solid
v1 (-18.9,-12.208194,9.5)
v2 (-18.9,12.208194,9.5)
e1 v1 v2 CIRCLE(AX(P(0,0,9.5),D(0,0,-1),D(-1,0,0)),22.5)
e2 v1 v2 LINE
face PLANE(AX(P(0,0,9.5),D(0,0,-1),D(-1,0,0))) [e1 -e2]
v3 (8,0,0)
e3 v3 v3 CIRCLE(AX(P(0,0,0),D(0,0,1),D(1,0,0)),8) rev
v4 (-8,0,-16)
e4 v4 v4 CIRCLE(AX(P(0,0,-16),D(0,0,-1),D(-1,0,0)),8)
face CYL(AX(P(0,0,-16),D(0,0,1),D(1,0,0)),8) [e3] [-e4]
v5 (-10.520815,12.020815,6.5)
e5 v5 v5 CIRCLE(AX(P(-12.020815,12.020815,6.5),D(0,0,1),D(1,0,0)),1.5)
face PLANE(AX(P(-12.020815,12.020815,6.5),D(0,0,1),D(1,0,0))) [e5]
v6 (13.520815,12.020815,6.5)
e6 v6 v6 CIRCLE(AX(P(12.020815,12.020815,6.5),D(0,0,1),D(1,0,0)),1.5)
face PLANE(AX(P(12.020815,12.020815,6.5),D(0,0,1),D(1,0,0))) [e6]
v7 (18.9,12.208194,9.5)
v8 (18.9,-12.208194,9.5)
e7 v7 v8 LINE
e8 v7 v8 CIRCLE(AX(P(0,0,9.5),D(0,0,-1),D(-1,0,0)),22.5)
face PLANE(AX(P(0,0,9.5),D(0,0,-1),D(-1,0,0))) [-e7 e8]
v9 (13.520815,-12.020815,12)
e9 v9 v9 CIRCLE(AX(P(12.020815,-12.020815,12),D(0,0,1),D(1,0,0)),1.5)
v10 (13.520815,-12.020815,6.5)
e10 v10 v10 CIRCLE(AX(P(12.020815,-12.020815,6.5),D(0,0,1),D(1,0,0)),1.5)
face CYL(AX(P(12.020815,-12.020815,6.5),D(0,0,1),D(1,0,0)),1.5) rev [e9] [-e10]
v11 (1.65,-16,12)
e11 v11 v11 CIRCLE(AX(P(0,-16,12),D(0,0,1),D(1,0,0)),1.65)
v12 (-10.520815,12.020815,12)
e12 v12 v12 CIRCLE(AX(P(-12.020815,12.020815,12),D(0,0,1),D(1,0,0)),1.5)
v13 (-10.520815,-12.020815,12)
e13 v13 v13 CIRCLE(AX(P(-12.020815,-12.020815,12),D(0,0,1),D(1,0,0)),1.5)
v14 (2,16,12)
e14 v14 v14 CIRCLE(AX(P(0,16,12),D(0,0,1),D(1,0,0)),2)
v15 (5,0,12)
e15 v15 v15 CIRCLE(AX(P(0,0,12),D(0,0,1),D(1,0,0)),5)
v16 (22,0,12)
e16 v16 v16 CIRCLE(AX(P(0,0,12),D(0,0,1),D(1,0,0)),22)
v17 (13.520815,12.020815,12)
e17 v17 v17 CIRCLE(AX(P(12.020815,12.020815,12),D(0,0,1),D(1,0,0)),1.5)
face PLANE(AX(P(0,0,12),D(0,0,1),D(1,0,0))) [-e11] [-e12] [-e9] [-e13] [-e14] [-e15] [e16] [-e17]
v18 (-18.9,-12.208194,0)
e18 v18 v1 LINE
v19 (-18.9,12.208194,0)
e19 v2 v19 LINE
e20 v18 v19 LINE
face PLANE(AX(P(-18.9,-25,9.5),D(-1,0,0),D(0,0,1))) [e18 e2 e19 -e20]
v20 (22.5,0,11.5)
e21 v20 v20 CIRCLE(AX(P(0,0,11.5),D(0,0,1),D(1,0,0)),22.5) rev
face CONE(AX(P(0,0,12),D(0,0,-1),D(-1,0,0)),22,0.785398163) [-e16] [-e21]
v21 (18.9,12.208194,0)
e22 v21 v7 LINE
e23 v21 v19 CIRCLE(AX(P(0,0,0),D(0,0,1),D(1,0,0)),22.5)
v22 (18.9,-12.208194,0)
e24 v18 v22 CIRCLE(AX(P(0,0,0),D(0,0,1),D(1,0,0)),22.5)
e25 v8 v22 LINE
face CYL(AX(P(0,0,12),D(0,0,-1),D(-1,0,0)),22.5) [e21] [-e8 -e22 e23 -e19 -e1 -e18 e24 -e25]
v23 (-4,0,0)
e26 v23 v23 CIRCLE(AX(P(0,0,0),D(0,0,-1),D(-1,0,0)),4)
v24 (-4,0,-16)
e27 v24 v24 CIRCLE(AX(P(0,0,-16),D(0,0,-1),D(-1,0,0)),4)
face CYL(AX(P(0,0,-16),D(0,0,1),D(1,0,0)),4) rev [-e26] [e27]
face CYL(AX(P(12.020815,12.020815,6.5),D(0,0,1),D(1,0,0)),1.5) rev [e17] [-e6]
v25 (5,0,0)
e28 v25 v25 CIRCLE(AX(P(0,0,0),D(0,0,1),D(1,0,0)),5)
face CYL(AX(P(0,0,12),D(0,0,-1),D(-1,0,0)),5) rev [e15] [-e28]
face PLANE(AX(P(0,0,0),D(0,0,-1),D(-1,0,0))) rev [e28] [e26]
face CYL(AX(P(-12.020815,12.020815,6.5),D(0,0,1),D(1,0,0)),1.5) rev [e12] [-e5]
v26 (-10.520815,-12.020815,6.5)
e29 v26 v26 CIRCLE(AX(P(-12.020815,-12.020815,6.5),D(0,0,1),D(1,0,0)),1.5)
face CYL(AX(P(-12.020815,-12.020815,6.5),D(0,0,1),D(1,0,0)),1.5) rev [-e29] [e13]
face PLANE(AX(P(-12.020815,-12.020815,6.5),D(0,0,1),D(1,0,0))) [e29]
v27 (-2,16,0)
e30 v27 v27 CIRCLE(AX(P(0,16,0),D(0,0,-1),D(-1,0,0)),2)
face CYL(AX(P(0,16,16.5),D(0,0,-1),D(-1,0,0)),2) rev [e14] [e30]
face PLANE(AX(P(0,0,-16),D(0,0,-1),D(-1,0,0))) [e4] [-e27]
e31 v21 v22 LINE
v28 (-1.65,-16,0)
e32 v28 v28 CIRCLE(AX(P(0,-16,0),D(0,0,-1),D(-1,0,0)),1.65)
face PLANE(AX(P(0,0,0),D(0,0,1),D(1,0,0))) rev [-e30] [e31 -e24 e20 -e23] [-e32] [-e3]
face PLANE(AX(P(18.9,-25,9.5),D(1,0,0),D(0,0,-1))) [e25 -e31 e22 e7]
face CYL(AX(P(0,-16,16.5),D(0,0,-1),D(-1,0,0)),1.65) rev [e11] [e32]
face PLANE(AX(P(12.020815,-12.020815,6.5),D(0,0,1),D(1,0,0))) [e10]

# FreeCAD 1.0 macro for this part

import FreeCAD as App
import Part
import Sketcher


def edges_at(feature, points):
    """Names of the edges that pass closest to the given points."""
    edges = feature.Shape.Edges
    near = lambda p: min(range(len(edges)), key=lambda i: edges[i].distToShape(Part.Vertex(*p))[0])
    return sorted({f"Edge{near(p) + 1}" for p in points})


def add_polygon(sketch, points):
    """Adds a closed chain of lines whose ends are joined by coincident constraints."""
    first, n = sketch.GeometryCount, len(points)
    for a, b in zip(points, points[1:] + points[:1]):
        sketch.addGeometry(Part.LineSegment(App.Vector(*a, 0), App.Vector(*b, 0)), False)
    for i in range(n):
        sketch.addConstraint(Sketcher.Constraint("Coincident", first + i, 2, first + (i + 1) % n, 1))

doc = App.newDocument("Part")
body = doc.addObject("PartDesign::Body", "Body")

sketch1 = body.newObject("Sketcher::SketchObject", "Sketch")
sketch1.AttachmentSupport = (doc.getObject("XY_Plane"), [""])
sketch1.MapMode = "FlatFace"
sketch1.addGeometry(Part.Circle(App.Vector(0, 0, 0), App.Vector(0, 0, 1), 22), False)
sketch1.addGeometry(Part.Circle(App.Vector(0, 0, 0), App.Vector(0, 0, 1), 5), False)
sketch1.addConstraint(Sketcher.Constraint("Coincident", 0, 3, -1, 1))
sketch1.addConstraint(Sketcher.Constraint("Coincident", 1, 3, -1, 1))
sketch1.addConstraint(Sketcher.Constraint("Diameter", 0, 45.0))
sketch1.addConstraint(Sketcher.Constraint("Diameter", 1, 10.0))
pad1 = body.newObject("PartDesign::Pad", "Pad")
pad1.Profile = sketch1
pad1.Length = 12

sketch2 = body.newObject("Sketcher::SketchObject", "Sketch001")
sketch2.AttachmentSupport = (doc.getObject("XY_Plane"), [""])
sketch2.MapMode = "FlatFace"
sketch2.AttachmentOffset = App.Placement(App.Vector(0, 0, 12), App.Rotation())
sketch2.addGeometry(Part.Circle(App.Vector(12, 12, 0), App.Vector(0, 0, 1), 1.5), False)
sketch2.addGeometry(Part.Circle(App.Vector(12, -12, 0), App.Vector(0, 0, 1), 1.5), False)
sketch2.addGeometry(Part.Circle(App.Vector(-12, -12, 0), App.Vector(0, 0, 1), 1.5), False)
sketch2.addGeometry(Part.Circle(App.Vector(-12, 12, 0), App.Vector(0, 0, 1), 1.5), False)
sketch2.addConstraint(Sketcher.Constraint("Equal", 0, 1))
sketch2.addConstraint(Sketcher.Constraint("Equal", 1, 2))
sketch2.addConstraint(Sketcher.Constraint("Equal", 2, 3))
sketch2.addConstraint(Sketcher.Constraint("Symmetric", 0, 3, 2, 3, -1, 1))
sketch2.addConstraint(Sketcher.Constraint("Symmetric", 1, 3, 3, 3, -1, 1))
sketch2.addConstraint(Sketcher.Constraint("Symmetric", 1, 3, 2, 3, -2))
sketch2.addConstraint(Sketcher.Constraint("Diameter", 0, 3.0))
sketch2.addConstraint(Sketcher.Constraint("DistanceY", 1, 3, 0, 3, 24.041631))
sketch2.addConstraint(Sketcher.Constraint("DistanceX", 2, 3, 1, 3, 24.041631))
pocket1 = body.newObject("PartDesign::Pocket", "Pocket")
pocket1.Profile = sketch2
pocket1.Length = 5.5
doc.recompute()

chamfer = body.newObject("PartDesign::Chamfer", "Chamfer")
chamfer.Base = (pocket1, edges_at(pocket1, [(-22.5, 0, 12)]))
chamfer.Size = 0.5

sketch3 = body.newObject("Sketcher::SketchObject", "Sketch002")
sketch3.AttachmentSupport = (doc.getObject("XY_Plane"), [""])
sketch3.MapMode = "FlatFace"
add_polygon(sketch3, [(30, 30), (30, -30), (-30, -30), (-30, 30)])
add_polygon(sketch3, [(-19, -25), (19, -25), (19, 25), (-19, 25)])
sketch3.addConstraint(Sketcher.Constraint("Vertical", 0))
sketch3.addConstraint(Sketcher.Constraint("Horizontal", 1))
sketch3.addConstraint(Sketcher.Constraint("Vertical", 2))
sketch3.addConstraint(Sketcher.Constraint("Horizontal", 3))
sketch3.addConstraint(Sketcher.Constraint("Horizontal", 4))
sketch3.addConstraint(Sketcher.Constraint("Vertical", 5))
sketch3.addConstraint(Sketcher.Constraint("Horizontal", 6))
sketch3.addConstraint(Sketcher.Constraint("Vertical", 7))
sketch3.addConstraint(Sketcher.Constraint("Symmetric", 0, 2, 2, 2, -1, 1))
sketch3.addConstraint(Sketcher.Constraint("Symmetric", 4, 2, 6, 2, -1, 1))
sketch3.addConstraint(Sketcher.Constraint("Equal", 3, 0))
sketch3.addConstraint(Sketcher.Constraint("DistanceY", 5, 1, 5, 2, 50.0))
sketch3.addConstraint(Sketcher.Constraint("DistanceX", 4, 1, 4, 2, 37.8))
sketch3.addConstraint(Sketcher.Constraint("DistanceX", 1, 2, 1, 1, 59.952))
pocket2 = body.newObject("PartDesign::Pocket", "Pocket001")
pocket2.Profile = sketch3
pocket2.Length = 9.5
pocket2.Reversed = True

sketch4 = body.newObject("Sketcher::SketchObject", "Sketch003")
sketch4.AttachmentSupport = (doc.getObject("XY_Plane"), [""])
sketch4.MapMode = "FlatFace"
sketch4.addGeometry(Part.Circle(App.Vector(0, 0, 0), App.Vector(0, 0, 1), 8), False)
sketch4.addGeometry(Part.Circle(App.Vector(0, 0, 0), App.Vector(0, 0, 1), 4), False)
sketch4.addConstraint(Sketcher.Constraint("Coincident", 0, 3, -1, 1))
sketch4.addConstraint(Sketcher.Constraint("Coincident", 1, 3, -1, 1))
sketch4.addConstraint(Sketcher.Constraint("Diameter", 0, 16.0))
sketch4.addConstraint(Sketcher.Constraint("Diameter", 1, 8.0))
pad2 = body.newObject("PartDesign::Pad", "Pad001")
pad2.Profile = sketch4
pad2.Length = 16
pad2.Reversed = True

sketch5 = body.newObject("Sketcher::SketchObject", "Sketch004")
sketch5.AttachmentSupport = (doc.getObject("XY_Plane"), [""])
sketch5.MapMode = "FlatFace"
sketch5.addGeometry(Part.Circle(App.Vector(0, 16, 0), App.Vector(0, 0, 1), 2), False)
sketch5.addGeometry(Part.Circle(App.Vector(0, -16, 0), App.Vector(0, 0, 1), 1.6), False)
sketch5.addConstraint(Sketcher.Constraint("Symmetric", 0, 3, 1, 3, -1, 1))
sketch5.addConstraint(Sketcher.Constraint("PointOnObject", 0, 3, -2))
sketch5.addConstraint(Sketcher.Constraint("Diameter", 0, 4.0))
sketch5.addConstraint(Sketcher.Constraint("Diameter", 1, 3.3))
sketch5.addConstraint(Sketcher.Constraint("DistanceY", -1, 1, 0, 3, 16.0))
pocket3 = body.newObject("PartDesign::Pocket", "Pocket002")
pocket3.Profile = sketch5
pocket3.Length = 16.5
pocket3.Reversed = True

doc.recompute()
